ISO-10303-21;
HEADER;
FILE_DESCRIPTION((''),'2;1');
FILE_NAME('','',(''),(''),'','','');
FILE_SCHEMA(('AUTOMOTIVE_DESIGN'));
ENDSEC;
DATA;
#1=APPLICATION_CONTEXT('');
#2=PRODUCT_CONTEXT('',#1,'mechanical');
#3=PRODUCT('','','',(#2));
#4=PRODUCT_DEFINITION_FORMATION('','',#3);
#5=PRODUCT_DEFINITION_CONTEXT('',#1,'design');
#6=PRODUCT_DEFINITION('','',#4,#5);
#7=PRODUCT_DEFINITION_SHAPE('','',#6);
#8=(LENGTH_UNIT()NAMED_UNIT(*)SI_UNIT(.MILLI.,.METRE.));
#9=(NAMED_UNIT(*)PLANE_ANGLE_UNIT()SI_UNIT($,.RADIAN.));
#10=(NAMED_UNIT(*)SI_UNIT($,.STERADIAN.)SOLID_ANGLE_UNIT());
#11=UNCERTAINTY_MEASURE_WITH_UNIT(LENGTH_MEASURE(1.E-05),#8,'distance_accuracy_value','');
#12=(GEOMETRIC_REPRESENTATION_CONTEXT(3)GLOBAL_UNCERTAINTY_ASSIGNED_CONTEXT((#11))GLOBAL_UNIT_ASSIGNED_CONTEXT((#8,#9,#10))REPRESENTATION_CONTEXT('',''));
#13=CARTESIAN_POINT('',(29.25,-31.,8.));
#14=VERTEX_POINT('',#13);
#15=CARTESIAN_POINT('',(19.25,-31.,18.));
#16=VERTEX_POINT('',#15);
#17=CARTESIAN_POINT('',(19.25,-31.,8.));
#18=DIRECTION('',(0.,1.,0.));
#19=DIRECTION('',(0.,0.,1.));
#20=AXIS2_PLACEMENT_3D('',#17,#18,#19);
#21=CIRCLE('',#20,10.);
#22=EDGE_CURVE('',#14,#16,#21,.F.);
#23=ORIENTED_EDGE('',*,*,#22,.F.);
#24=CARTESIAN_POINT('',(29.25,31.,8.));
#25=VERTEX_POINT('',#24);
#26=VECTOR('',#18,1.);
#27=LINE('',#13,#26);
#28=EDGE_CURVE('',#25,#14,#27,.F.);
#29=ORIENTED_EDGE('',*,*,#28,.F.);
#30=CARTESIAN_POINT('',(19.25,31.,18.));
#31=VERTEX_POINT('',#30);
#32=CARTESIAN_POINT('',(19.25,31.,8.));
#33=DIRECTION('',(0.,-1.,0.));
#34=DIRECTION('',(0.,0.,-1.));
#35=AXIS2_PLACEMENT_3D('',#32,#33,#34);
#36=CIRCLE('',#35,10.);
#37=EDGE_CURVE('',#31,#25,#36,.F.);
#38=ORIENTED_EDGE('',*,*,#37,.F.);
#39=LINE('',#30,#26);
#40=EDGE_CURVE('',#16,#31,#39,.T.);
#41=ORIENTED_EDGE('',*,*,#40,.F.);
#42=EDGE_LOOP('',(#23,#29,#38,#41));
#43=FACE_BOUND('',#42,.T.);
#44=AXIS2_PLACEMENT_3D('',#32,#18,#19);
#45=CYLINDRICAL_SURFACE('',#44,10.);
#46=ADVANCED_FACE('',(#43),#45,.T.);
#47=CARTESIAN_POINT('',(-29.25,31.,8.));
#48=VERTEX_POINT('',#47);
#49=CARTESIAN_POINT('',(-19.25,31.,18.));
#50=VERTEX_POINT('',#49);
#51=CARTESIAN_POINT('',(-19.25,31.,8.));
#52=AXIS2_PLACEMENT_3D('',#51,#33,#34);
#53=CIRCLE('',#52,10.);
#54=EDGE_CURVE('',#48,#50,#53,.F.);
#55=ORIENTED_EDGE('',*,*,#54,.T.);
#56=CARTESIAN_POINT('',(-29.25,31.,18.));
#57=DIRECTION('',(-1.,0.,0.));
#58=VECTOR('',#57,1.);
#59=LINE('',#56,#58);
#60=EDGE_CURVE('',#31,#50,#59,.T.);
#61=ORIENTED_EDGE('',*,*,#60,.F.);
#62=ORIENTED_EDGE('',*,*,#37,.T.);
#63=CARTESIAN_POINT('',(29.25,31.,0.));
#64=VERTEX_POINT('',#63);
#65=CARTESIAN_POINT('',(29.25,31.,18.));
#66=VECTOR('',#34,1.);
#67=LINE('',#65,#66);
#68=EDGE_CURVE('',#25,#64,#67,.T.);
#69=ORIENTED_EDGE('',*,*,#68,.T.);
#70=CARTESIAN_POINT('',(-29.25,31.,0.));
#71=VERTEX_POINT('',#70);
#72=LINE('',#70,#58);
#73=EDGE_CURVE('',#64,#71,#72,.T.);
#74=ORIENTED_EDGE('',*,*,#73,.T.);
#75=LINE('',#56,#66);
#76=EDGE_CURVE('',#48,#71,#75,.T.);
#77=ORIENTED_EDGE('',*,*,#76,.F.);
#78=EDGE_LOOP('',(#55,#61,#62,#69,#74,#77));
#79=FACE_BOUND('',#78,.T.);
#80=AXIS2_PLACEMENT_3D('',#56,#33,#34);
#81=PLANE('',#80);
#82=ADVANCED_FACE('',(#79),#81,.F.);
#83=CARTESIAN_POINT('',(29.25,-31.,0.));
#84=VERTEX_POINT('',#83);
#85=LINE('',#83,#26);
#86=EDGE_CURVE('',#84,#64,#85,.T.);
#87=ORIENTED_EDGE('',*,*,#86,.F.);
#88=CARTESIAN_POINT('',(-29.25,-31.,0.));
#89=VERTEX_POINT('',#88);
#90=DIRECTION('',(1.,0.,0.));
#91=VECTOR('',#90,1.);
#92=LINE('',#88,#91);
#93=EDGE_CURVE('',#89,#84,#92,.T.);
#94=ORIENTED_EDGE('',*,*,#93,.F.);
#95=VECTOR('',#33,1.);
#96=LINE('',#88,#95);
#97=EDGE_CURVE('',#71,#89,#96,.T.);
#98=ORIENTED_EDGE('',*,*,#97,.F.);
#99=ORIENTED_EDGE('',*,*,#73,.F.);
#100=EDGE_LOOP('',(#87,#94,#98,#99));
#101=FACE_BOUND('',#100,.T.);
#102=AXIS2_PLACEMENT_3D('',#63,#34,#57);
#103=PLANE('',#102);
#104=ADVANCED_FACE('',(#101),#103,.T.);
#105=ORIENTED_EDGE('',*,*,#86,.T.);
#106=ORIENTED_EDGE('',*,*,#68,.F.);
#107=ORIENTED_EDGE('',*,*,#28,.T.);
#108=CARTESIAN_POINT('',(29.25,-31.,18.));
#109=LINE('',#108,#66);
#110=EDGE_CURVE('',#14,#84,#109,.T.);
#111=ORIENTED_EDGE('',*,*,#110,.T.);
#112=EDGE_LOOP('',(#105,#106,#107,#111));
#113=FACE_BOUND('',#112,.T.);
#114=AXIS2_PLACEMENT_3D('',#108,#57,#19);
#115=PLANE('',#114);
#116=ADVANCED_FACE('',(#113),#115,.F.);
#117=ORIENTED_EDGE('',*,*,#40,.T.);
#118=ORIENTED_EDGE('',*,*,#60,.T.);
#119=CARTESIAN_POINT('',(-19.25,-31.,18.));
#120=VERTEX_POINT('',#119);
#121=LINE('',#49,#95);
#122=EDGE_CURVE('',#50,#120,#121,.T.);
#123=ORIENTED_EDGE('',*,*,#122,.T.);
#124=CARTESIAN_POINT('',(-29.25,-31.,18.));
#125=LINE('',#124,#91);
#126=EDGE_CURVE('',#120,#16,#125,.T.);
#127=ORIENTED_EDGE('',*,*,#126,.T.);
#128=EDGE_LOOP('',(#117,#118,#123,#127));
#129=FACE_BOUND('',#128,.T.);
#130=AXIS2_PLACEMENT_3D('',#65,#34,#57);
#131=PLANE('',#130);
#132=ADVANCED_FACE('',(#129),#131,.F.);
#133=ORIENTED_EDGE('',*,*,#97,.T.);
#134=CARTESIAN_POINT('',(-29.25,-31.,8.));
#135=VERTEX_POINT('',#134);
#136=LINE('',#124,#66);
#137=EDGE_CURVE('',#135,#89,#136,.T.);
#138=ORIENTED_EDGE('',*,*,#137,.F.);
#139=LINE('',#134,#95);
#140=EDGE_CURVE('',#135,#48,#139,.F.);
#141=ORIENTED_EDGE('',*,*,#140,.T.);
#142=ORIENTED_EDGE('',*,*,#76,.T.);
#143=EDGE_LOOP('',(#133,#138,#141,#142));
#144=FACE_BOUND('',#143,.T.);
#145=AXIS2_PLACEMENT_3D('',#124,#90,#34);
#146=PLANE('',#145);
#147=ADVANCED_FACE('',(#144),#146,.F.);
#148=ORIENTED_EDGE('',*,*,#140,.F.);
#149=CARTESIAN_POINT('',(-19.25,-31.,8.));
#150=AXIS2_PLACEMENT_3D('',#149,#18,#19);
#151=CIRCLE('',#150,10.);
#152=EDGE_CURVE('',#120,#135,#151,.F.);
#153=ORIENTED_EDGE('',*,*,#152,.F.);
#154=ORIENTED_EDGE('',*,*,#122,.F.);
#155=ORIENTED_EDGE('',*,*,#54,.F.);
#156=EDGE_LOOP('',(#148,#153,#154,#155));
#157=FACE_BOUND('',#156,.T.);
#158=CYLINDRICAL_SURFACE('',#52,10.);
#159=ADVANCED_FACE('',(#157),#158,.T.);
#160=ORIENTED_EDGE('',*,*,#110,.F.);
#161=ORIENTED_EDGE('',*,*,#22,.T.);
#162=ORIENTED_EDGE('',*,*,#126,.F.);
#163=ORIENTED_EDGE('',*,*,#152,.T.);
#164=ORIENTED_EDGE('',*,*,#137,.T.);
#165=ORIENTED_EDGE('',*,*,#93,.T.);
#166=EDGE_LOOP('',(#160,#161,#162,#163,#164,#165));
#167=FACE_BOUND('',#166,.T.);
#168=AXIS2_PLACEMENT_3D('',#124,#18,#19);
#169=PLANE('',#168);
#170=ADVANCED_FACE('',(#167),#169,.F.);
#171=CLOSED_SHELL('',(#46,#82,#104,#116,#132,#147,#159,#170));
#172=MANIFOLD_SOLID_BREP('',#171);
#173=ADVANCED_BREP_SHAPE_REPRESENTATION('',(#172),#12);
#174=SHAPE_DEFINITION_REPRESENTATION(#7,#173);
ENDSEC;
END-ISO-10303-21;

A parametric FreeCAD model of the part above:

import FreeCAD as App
import Part
import Sketcher


def edges_at(feature, points):
    """Names of the edges that pass closest to the given points."""
    edges = feature.Shape.Edges
    near = lambda p: min(range(len(edges)), key=lambda i: edges[i].distToShape(Part.Vertex(*p))[0])
    return sorted({f"Edge{near(p) + 1}" for p in points})


def add_polygon(sketch, points):
    """Adds a closed chain of lines whose ends are joined by coincident constraints."""
    first, n = sketch.GeometryCount, len(points)
    for a, b in zip(points, points[1:] + points[:1]):
        sketch.addGeometry(Part.LineSegment(App.Vector(*a, 0), App.Vector(*b, 0)), False)
    for i in range(n):
        sketch.addConstraint(Sketcher.Constraint("Coincident", first + i, 2, first + (i + 1) % n, 1))

doc = App.newDocument("Part")
body = doc.addObject("PartDesign::Body", "Body")

# Sketch on XY plane
sketch1 = body.newObject("Sketcher::SketchObject", "Sketch")
sketch1.AttachmentSupport = (doc.getObject("XY_Plane"), [""])
sketch1.MapMode = "FlatFace"
add_polygon(sketch1, [(-29.25, 31), (-29.25, -31), (29.25, -31), (29.25, 31)])  # lines 0-3
sketch1.addConstraint([
    Sketcher.Constraint("Vertical", 0),
    Sketcher.Constraint("Horizontal", 1),
    Sketcher.Constraint("Vertical", 2),
    Sketcher.Constraint("Horizontal", 3),
    Sketcher.Constraint("Symmetric", 0, 2, 2, 2, -1, 1),
    Sketcher.Constraint("DistanceY", 0, 2, 0, 1, 62.0),
    Sketcher.Constraint("DistanceX", 1, 1, 1, 2, 58.5),
])
pad1 = body.newObject("PartDesign::Pad", "Pad")
pad1.Profile = sketch1
pad1.Length = 18
doc.recompute()

fillet = body.newObject("PartDesign::Fillet", "Fillet")
fillet.Base = (pad1, edges_at(pad1, [(-29.25, 0, 18), (29.25, 0, 18)]))
fillet.Radius = 10

doc.recompute()
